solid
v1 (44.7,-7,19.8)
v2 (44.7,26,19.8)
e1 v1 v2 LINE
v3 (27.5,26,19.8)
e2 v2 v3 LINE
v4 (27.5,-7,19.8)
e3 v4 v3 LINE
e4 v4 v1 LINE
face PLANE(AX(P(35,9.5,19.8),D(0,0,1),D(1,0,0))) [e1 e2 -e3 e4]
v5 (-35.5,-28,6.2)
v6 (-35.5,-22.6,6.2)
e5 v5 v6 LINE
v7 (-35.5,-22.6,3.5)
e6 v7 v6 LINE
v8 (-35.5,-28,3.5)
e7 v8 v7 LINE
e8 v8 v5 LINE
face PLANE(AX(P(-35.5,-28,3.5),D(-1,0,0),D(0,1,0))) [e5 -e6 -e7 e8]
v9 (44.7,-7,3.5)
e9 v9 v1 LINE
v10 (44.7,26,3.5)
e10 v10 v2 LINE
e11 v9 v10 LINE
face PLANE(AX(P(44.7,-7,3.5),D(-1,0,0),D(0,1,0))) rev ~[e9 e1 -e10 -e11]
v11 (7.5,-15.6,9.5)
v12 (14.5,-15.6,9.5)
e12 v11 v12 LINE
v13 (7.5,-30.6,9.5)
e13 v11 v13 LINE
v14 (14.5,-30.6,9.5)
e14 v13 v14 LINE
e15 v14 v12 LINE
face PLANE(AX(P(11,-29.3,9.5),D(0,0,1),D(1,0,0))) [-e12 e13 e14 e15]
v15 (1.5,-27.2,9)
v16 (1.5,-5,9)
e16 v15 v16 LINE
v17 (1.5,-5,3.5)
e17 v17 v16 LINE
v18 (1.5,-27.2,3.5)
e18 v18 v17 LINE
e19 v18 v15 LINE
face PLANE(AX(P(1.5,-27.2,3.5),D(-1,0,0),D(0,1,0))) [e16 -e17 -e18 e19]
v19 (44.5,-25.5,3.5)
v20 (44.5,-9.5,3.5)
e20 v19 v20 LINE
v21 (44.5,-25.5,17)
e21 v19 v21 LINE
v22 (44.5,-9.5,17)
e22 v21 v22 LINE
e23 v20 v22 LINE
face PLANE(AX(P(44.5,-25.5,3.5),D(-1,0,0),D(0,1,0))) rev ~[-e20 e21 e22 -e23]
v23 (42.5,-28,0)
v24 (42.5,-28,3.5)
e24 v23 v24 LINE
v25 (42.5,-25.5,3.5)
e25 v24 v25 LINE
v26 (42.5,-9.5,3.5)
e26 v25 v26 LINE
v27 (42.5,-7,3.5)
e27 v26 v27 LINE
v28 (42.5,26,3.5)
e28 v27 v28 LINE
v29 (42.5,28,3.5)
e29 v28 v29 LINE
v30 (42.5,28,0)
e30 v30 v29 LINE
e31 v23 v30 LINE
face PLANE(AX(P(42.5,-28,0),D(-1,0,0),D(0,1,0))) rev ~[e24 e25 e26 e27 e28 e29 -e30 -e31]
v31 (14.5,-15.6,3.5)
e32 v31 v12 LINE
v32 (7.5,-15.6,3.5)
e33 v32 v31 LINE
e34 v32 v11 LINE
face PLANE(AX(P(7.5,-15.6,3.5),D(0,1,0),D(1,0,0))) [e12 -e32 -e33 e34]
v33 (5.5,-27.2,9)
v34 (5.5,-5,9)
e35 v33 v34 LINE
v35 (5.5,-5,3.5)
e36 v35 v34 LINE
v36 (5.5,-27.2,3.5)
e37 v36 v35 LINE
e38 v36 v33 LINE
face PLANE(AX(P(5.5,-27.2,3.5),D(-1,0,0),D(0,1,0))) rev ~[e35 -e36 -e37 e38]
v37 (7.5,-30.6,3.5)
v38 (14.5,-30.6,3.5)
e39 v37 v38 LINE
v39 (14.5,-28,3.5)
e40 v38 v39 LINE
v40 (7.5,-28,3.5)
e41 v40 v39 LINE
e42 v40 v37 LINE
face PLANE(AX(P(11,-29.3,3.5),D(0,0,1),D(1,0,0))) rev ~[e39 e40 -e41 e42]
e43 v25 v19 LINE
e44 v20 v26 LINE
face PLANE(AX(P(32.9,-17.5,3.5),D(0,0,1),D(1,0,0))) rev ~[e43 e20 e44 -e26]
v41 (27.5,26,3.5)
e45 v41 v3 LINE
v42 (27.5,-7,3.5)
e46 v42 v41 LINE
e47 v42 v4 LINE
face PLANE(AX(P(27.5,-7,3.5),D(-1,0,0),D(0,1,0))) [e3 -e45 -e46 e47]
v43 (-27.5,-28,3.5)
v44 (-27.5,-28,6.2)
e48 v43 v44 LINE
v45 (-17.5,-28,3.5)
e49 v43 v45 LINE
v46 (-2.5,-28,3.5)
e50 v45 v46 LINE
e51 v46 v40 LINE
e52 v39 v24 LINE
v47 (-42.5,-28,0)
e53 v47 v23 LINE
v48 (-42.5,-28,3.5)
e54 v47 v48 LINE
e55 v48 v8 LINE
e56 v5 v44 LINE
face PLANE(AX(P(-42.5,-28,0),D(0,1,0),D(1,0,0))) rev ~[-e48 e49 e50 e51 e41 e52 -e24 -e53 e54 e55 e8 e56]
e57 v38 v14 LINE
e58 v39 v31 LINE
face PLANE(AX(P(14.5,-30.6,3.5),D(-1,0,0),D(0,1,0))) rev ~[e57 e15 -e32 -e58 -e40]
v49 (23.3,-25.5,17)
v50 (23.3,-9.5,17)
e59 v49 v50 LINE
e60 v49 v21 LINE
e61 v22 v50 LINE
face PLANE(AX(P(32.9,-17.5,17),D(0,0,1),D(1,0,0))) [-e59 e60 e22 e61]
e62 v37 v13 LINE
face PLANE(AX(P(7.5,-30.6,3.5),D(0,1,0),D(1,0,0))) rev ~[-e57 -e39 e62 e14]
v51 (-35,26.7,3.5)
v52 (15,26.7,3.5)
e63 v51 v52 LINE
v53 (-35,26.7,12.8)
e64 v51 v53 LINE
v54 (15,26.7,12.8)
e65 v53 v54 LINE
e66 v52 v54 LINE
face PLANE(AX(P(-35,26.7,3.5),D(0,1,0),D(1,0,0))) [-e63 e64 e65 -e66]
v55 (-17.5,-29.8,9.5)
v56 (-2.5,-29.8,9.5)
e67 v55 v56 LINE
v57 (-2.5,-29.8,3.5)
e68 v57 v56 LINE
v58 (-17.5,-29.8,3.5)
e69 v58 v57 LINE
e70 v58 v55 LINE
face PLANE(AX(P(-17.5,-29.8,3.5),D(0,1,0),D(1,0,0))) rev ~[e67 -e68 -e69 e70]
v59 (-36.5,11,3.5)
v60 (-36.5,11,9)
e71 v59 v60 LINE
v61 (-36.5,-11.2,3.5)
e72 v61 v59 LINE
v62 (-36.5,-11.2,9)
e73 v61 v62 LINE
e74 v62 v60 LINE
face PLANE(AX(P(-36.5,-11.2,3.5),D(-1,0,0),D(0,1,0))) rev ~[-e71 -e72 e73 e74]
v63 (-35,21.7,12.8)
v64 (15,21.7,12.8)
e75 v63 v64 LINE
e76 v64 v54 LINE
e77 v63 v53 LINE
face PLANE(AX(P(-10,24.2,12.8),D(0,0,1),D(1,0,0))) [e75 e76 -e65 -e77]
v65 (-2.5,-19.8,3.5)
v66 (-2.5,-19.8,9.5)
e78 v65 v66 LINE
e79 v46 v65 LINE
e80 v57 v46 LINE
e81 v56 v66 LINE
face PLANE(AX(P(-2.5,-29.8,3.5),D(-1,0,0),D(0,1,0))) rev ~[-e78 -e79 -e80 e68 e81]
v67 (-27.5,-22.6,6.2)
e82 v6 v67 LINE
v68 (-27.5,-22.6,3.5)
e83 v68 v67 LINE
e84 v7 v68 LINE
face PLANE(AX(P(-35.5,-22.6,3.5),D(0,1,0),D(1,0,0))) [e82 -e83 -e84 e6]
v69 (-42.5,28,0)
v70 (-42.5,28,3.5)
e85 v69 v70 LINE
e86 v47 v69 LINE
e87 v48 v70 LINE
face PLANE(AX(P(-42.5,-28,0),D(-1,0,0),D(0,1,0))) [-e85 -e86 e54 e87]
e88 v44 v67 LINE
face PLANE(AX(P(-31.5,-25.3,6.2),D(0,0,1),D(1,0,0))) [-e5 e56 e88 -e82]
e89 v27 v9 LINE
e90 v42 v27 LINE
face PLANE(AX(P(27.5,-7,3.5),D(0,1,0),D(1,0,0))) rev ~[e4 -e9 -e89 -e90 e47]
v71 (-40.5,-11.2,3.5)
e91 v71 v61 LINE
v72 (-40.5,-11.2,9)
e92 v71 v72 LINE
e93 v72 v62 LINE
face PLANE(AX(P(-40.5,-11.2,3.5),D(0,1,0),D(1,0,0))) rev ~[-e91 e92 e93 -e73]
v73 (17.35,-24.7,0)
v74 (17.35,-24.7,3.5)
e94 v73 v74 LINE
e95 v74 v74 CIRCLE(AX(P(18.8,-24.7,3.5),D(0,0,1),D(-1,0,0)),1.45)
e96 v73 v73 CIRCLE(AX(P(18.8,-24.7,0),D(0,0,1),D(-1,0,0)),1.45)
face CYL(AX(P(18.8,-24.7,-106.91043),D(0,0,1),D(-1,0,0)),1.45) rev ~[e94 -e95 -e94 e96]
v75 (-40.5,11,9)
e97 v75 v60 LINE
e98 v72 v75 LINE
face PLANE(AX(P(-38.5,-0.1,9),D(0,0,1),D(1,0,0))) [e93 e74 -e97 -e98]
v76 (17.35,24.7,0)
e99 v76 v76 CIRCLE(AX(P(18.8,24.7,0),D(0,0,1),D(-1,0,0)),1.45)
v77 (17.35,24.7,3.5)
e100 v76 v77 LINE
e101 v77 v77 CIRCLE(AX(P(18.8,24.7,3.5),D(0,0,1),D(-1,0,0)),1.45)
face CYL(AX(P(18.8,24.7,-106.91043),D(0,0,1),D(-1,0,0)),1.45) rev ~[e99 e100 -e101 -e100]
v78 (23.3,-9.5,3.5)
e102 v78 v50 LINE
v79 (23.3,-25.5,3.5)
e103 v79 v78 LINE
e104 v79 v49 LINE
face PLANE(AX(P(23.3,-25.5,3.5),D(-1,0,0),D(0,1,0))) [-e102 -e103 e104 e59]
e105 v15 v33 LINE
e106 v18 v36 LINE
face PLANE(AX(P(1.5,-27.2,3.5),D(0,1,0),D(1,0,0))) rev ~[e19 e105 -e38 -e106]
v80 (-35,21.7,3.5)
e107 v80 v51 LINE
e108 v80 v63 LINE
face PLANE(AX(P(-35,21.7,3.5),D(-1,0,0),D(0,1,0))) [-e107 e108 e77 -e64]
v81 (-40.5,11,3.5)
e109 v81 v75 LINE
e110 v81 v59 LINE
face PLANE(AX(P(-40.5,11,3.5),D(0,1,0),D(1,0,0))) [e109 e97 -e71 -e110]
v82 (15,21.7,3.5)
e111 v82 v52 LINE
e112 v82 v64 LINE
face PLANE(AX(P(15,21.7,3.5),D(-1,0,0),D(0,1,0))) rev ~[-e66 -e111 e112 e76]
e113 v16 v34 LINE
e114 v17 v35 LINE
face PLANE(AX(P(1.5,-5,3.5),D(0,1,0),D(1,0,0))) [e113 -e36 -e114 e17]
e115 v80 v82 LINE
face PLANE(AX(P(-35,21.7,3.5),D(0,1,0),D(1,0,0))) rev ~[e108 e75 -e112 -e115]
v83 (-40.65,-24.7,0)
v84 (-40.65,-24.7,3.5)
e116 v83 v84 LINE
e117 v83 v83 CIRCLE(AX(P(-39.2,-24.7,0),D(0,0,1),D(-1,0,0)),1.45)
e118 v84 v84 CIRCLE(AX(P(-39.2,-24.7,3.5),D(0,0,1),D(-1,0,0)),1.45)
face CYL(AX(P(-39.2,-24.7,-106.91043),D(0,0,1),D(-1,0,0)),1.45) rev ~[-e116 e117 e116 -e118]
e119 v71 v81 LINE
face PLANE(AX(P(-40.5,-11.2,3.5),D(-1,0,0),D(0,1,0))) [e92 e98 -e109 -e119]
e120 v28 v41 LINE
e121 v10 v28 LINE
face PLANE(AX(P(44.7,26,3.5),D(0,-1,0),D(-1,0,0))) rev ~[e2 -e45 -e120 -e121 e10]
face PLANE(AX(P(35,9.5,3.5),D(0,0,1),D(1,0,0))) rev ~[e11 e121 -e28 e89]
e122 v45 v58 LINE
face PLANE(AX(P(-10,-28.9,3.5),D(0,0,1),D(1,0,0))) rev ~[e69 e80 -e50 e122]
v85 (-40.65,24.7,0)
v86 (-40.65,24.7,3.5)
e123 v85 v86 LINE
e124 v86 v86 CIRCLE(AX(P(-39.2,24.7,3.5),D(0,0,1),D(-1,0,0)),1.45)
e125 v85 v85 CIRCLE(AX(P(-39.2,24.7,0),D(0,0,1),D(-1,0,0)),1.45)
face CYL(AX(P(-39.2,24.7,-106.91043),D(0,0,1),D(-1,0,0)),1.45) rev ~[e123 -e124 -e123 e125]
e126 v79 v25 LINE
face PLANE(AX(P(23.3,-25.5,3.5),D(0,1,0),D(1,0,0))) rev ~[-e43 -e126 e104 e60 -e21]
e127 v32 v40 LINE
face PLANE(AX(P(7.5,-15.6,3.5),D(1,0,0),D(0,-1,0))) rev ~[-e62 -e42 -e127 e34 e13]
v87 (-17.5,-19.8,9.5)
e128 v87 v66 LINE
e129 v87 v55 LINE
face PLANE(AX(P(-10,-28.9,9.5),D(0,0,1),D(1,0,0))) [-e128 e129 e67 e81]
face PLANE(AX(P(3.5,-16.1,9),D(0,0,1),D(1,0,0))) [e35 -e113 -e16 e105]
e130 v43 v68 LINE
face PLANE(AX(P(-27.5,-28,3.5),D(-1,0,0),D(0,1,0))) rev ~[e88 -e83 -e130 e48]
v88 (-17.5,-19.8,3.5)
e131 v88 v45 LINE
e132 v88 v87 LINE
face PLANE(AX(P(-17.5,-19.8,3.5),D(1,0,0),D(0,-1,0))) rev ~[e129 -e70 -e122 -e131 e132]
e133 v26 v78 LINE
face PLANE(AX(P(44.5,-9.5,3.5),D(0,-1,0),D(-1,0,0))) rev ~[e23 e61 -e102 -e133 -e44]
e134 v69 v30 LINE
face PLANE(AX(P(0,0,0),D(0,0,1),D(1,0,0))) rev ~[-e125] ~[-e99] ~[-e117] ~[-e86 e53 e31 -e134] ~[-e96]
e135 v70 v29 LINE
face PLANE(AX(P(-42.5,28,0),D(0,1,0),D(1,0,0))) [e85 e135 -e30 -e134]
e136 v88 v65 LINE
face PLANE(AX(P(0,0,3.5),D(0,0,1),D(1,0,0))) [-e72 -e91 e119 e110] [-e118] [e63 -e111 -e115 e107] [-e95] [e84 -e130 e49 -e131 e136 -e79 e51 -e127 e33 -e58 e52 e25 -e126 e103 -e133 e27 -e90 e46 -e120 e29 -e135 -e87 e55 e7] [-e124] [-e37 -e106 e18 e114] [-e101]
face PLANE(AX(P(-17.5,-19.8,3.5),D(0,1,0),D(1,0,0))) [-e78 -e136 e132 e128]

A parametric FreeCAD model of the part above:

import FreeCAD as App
import Part
import Sketcher


def add_polygon(sketch, points):
    """Adds a closed chain of lines whose ends are joined by coincident constraints."""
    first, n = sketch.GeometryCount, len(points)
    for a, b in zip(points, points[1:] + points[:1]):
        sketch.addGeometry(Part.LineSegment(App.Vector(*a, 0), App.Vector(*b, 0)), False)
    for i in range(n):
        sketch.addConstraint(Sketcher.Constraint("Coincident", first + i, 2, first + (i + 1) % n, 1))

doc = App.newDocument("Part")
body = doc.addObject("PartDesign::Body", "Body")

# Sketch on XY plane
sketch1 = doc.addObject("Sketcher::SketchObject", "Sketch")
body.addObject(sketch1)
sketch1.AttachmentSupport = (doc.XY_Plane, [""])
sketch1.MapMode = "FlatFace"
add_polygon(sketch1, [(-42, 28), (-42, -28), (42, -28), (42, 28)])  # lines 0-3
sketch1.addConstraint([
    Sketcher.Constraint("Vertical", 0),
    Sketcher.Constraint("Horizontal", 1),
    Sketcher.Constraint("Vertical", 2),
    Sketcher.Constraint("Horizontal", 3),
    Sketcher.Constraint("Symmetric", 0, 2, 2, 2, -1, 1),
    Sketcher.Constraint("DistanceX", 1, 1, 1, 2, 85.0),
    Sketcher.Constraint("DistanceY", 0, 2, 0, 1, 56.0),
])
pad1 = doc.addObject("PartDesign::Pad", "Pad")
body.addObject(pad1)
pad1.Profile = sketch1
pad1.Length = 3.5

# Sketch on XY plane
sketch2 = doc.addObject("Sketcher::SketchObject", "Sketch001")
body.addObject(sketch2)
sketch2.AttachmentSupport = (doc.XY_Plane, [""])
sketch2.MapMode = "FlatFace"
sketch2.AttachmentOffset = App.Placement(App.Vector(0, 0, 3.5), App.Rotation())
add_polygon(sketch2, [(-35, 27), (-35, 22), (15, 22), (15, 27)])  # lines 0-3
sketch2.addConstraint([
    Sketcher.Constraint("Vertical", 0),
    Sketcher.Constraint("Horizontal", 1),
    Sketcher.Constraint("Vertical", 2),
    Sketcher.Constraint("Horizontal", 3),
    Sketcher.Constraint("DistanceX", 1, 1, 1, 2, 50.0),
    Sketcher.Constraint("DistanceY", 0, 2, 0, 1, 5.0),
    Sketcher.Constraint("DistanceX", 0, 2, -1, 1, 35.0),
    Sketcher.Constraint("DistanceY", -1, 1, 0, 2, 21.7),
])
pad2 = doc.addObject("PartDesign::Pad", "Pad001")
body.addObject(pad2)
pad2.Profile = sketch2
pad2.Length = 9.3

# Sketch on XY plane
sketch3 = doc.addObject("Sketcher::SketchObject", "Sketch002")
body.addObject(sketch3)
sketch3.AttachmentSupport = (doc.XY_Plane, [""])
sketch3.MapMode = "FlatFace"
sketch3.AttachmentOffset = App.Placement(App.Vector(0, 0, 3.5), App.Rotation())
add_polygon(sketch3, [(-40.5, 11), (-40.5, -11.2), (-36.5, -11.2), (-36.5, 11)])  # lines 0-3
add_polygon(sketch3, [(1.5, -5), (1.5, -27.2), (5.5, -27.2), (5.5, -5)])  # lines 4-7
sketch3.addConstraint([
    Sketcher.Constraint("Vertical", 0),
    Sketcher.Constraint("Horizontal", 1),
    Sketcher.Constraint("Vertical", 2),
    Sketcher.Constraint("Horizontal", 3),
    Sketcher.Constraint("Vertical", 4),
    Sketcher.Constraint("Horizontal", 5),
    Sketcher.Constraint("Vertical", 6),
    Sketcher.Constraint("Horizontal", 7),
    Sketcher.Constraint("Equal", 3, 5),
    Sketcher.Constraint("Equal", 2, 4),
    Sketcher.Constraint("DistanceX", 1, 1, 1, 2, 4.0),
    Sketcher.Constraint("DistanceY", 0, 2, 0, 1, 22.2),
    Sketcher.Constraint("DistanceY", -1, 1, 2, 2, 11.0),
    Sketcher.Constraint("DistanceY", 6, 2, -1, 1, 5.0),
    Sketcher.Constraint("DistanceX", 1, 2, 4, 2, 38.0),
    Sketcher.Constraint("DistanceX", 0, 2, -1, 1, 40.5),
])
pad3 = doc.addObject("PartDesign::Pad", "Pad002")
body.addObject(pad3)
pad3.Profile = sketch3
pad3.Length = 5.5

# Sketch on XY plane
sketch4 = doc.addObject("Sketcher::SketchObject", "Sketch003")
body.addObject(sketch4)
sketch4.AttachmentSupport = (doc.XY_Plane, [""])
sketch4.MapMode = "FlatFace"
sketch4.AttachmentOffset = App.Placement(App.Vector(0, 0, 3.5), App.Rotation())
add_polygon(sketch4, [(-36, -23), (-36, -28), (-28, -28), (-28, -23)])  # lines 0-3
sketch4.addConstraint([
    Sketcher.Constraint("Vertical", 0),
    Sketcher.Constraint("Horizontal", 1),
    Sketcher.Constraint("Vertical", 2),
    Sketcher.Constraint("Horizontal", 3),
    Sketcher.Constraint("DistanceX", 1, 1, 1, 2, 8.0),
    Sketcher.Constraint("DistanceY", 0, 2, 0, 1, 5.4),
    Sketcher.Constraint("DistanceY", 0, 2, -1, 1, 28.0),
    Sketcher.Constraint("DistanceX", 0, 2, -1, 1, 35.5),
])
pad4 = doc.addObject("PartDesign::Pad", "Pad003")
body.addObject(pad4)
pad4.Profile = sketch4
pad4.Length = 2.7

# Sketch on XY plane
sketch5 = doc.addObject("Sketcher::SketchObject", "Sketch004")
body.addObject(sketch5)
sketch5.AttachmentSupport = (doc.XY_Plane, [""])
sketch5.MapMode = "FlatFace"
sketch5.AttachmentOffset = App.Placement(App.Vector(0, 0, 3.5), App.Rotation())
add_polygon(sketch5, [(-18, -30), (-2, -30), (-2, -20), (-18, -20)])  # lines 0-3
sketch5.addConstraint([
    Sketcher.Constraint("Horizontal", 0),
    Sketcher.Constraint("Vertical", 1),
    Sketcher.Constraint("Horizontal", 2),
    Sketcher.Constraint("Vertical", 3),
    Sketcher.Constraint("DistanceX", 0, 1, 0, 2, 15.0),
    Sketcher.Constraint("DistanceY", 1, 1, 1, 2, 10.0),
    Sketcher.Constraint("DistanceX", 0, 2, -1, 1, 2.5),
    Sketcher.Constraint("DistanceY", 0, 2, -1, 1, 29.8),
])
pad5 = doc.addObject("PartDesign::Pad", "Pad004")
body.addObject(pad5)
pad5.Profile = sketch5
pad5.Length = 6

# Sketch on XY plane
sketch6 = doc.addObject("Sketcher::SketchObject", "Sketch005")
body.addObject(sketch6)
sketch6.AttachmentSupport = (doc.XY_Plane, [""])
sketch6.MapMode = "FlatFace"
sketch6.AttachmentOffset = App.Placement(App.Vector(0, 0, 3.5), App.Rotation())
add_polygon(sketch6, [(8, -31), (14, -31), (14, -16), (8, -16)])  # lines 0-3
sketch6.addConstraint([
    Sketcher.Constraint("Horizontal", 0),
    Sketcher.Constraint("Vertical", 1),
    Sketcher.Constraint("Horizontal", 2),
    Sketcher.Constraint("Vertical", 3),
    Sketcher.Constraint("DistanceX", 0, 1, 0, 2, 7.0),
    Sketcher.Constraint("DistanceY", 1, 1, 1, 2, 15.0),
    Sketcher.Constraint("DistanceX", -1, 1, 0, 2, 14.5),
    Sketcher.Constraint("DistanceY", 0, 2, -1, 1, 30.6),
])
pad6 = doc.addObject("PartDesign::Pad", "Pad005")
body.addObject(pad6)
pad6.Profile = sketch6
pad6.Length = 6

# Sketch on XY plane
sketch7 = doc.addObject("Sketcher::SketchObject", "Sketch006")
body.addObject(sketch7)
sketch7.AttachmentSupport = (doc.XY_Plane, [""])
sketch7.MapMode = "FlatFace"
sketch7.AttachmentOffset = App.Placement(App.Vector(0, 0, 3.5), App.Rotation())
add_polygon(sketch7, [(28, 26), (28, -7), (45, -7), (45, 26)])  # lines 0-3
sketch7.addConstraint([
    Sketcher.Constraint("Vertical", 0),
    Sketcher.Constraint("Horizontal", 1),
    Sketcher.Constraint("Vertical", 2),
    Sketcher.Constraint("Horizontal", 3),
    Sketcher.Constraint("DistanceY", 0, 2, 0, 1, 33.0),
    Sketcher.Constraint("DistanceX", 1, 1, 1, 2, 17.2),
    Sketcher.Constraint("DistanceY", 0, 2, -1, 1, 7.0),
    Sketcher.Constraint("DistanceX", -1, 1, 0, 2, 27.5),
])
pad7 = doc.addObject("PartDesign::Pad", "Pad006")
body.addObject(pad7)
pad7.Profile = sketch7
pad7.Length = 16.3

# Sketch on XY plane
sketch8 = doc.addObject("Sketcher::SketchObject", "Sketch007")
body.addObject(sketch8)
sketch8.AttachmentSupport = (doc.XY_Plane, [""])
sketch8.MapMode = "FlatFace"
sketch8.AttachmentOffset = App.Placement(App.Vector(0, 0, 3.5), App.Rotation())
add_polygon(sketch8, [(23, -10), (23, -26), (44, -26), (44, -10)])  # lines 0-3
sketch8.addConstraint([
    Sketcher.Constraint("Vertical", 0),
    Sketcher.Constraint("Horizontal", 1),
    Sketcher.Constraint("Vertical", 2),
    Sketcher.Constraint("Horizontal", 3),
    Sketcher.Constraint("DistanceY", 0, 2, 0, 1, 16.0),
    Sketcher.Constraint("DistanceX", 1, 1, 1, 2, 21.2),
    Sketcher.Constraint("DistanceX", -1, 1, 0, 2, 23.3),
    Sketcher.Constraint("DistanceY", 0, 2, -1, 1, 25.5),
])
pad8 = doc.addObject("PartDesign::Pad", "Pad007")
body.addObject(pad8)
pad8.Profile = sketch8
pad8.Length = 13.5

# Sketch on XY plane
sketch9 = doc.addObject("Sketcher::SketchObject", "Sketch008")
body.addObject(sketch9)
sketch9.AttachmentSupport = (doc.XY_Plane, [""])
sketch9.MapMode = "FlatFace"
sketch9.addGeometry([
    Part.Circle(App.Vector(18.8, -24.7, 0), App.Vector(0, 0, 1), 1.4),
    Part.Circle(App.Vector(-39.2, -24.7, 0), App.Vector(0, 0, 1), 1.4),
    Part.Circle(App.Vector(-39.2, 24.7, 0), App.Vector(0, 0, 1), 1.4),
    Part.Circle(App.Vector(18.8, 24.7, 0), App.Vector(0, 0, 1), 1.4),
], False)
sketch9.addConstraint([
    Sketcher.Constraint("Equal", 0, 1),
    Sketcher.Constraint("Equal", 1, 2),
    Sketcher.Constraint("Equal", 2, 3),
    Sketcher.Constraint("Symmetric", 1, 3, 2, 3, -1),
    Sketcher.Constraint("Symmetric", 0, 3, 3, 3, -1),
    Sketcher.Constraint("Horizontal", 0, 3, 1, 3),
    Sketcher.Constraint("Diameter", 0, 2.9),
    Sketcher.Constraint("DistanceX", 1, 3, 0, 3, 58.0),
    Sketcher.Constraint("DistanceX", -1, 1, 0, 3, 18.8),
    Sketcher.Constraint("DistanceY", 0, 3, -1, 1, 24.7),
])
doc.recompute()
hole = doc.addObject("PartDesign::Hole", "Hole")
body.addObject(hole)
hole.Profile = sketch9
hole.ThreadType = "None"
hole.Diameter = 2.9
hole.DepthType = "ThroughAll"
hole.Reversed = True

doc.recompute()
